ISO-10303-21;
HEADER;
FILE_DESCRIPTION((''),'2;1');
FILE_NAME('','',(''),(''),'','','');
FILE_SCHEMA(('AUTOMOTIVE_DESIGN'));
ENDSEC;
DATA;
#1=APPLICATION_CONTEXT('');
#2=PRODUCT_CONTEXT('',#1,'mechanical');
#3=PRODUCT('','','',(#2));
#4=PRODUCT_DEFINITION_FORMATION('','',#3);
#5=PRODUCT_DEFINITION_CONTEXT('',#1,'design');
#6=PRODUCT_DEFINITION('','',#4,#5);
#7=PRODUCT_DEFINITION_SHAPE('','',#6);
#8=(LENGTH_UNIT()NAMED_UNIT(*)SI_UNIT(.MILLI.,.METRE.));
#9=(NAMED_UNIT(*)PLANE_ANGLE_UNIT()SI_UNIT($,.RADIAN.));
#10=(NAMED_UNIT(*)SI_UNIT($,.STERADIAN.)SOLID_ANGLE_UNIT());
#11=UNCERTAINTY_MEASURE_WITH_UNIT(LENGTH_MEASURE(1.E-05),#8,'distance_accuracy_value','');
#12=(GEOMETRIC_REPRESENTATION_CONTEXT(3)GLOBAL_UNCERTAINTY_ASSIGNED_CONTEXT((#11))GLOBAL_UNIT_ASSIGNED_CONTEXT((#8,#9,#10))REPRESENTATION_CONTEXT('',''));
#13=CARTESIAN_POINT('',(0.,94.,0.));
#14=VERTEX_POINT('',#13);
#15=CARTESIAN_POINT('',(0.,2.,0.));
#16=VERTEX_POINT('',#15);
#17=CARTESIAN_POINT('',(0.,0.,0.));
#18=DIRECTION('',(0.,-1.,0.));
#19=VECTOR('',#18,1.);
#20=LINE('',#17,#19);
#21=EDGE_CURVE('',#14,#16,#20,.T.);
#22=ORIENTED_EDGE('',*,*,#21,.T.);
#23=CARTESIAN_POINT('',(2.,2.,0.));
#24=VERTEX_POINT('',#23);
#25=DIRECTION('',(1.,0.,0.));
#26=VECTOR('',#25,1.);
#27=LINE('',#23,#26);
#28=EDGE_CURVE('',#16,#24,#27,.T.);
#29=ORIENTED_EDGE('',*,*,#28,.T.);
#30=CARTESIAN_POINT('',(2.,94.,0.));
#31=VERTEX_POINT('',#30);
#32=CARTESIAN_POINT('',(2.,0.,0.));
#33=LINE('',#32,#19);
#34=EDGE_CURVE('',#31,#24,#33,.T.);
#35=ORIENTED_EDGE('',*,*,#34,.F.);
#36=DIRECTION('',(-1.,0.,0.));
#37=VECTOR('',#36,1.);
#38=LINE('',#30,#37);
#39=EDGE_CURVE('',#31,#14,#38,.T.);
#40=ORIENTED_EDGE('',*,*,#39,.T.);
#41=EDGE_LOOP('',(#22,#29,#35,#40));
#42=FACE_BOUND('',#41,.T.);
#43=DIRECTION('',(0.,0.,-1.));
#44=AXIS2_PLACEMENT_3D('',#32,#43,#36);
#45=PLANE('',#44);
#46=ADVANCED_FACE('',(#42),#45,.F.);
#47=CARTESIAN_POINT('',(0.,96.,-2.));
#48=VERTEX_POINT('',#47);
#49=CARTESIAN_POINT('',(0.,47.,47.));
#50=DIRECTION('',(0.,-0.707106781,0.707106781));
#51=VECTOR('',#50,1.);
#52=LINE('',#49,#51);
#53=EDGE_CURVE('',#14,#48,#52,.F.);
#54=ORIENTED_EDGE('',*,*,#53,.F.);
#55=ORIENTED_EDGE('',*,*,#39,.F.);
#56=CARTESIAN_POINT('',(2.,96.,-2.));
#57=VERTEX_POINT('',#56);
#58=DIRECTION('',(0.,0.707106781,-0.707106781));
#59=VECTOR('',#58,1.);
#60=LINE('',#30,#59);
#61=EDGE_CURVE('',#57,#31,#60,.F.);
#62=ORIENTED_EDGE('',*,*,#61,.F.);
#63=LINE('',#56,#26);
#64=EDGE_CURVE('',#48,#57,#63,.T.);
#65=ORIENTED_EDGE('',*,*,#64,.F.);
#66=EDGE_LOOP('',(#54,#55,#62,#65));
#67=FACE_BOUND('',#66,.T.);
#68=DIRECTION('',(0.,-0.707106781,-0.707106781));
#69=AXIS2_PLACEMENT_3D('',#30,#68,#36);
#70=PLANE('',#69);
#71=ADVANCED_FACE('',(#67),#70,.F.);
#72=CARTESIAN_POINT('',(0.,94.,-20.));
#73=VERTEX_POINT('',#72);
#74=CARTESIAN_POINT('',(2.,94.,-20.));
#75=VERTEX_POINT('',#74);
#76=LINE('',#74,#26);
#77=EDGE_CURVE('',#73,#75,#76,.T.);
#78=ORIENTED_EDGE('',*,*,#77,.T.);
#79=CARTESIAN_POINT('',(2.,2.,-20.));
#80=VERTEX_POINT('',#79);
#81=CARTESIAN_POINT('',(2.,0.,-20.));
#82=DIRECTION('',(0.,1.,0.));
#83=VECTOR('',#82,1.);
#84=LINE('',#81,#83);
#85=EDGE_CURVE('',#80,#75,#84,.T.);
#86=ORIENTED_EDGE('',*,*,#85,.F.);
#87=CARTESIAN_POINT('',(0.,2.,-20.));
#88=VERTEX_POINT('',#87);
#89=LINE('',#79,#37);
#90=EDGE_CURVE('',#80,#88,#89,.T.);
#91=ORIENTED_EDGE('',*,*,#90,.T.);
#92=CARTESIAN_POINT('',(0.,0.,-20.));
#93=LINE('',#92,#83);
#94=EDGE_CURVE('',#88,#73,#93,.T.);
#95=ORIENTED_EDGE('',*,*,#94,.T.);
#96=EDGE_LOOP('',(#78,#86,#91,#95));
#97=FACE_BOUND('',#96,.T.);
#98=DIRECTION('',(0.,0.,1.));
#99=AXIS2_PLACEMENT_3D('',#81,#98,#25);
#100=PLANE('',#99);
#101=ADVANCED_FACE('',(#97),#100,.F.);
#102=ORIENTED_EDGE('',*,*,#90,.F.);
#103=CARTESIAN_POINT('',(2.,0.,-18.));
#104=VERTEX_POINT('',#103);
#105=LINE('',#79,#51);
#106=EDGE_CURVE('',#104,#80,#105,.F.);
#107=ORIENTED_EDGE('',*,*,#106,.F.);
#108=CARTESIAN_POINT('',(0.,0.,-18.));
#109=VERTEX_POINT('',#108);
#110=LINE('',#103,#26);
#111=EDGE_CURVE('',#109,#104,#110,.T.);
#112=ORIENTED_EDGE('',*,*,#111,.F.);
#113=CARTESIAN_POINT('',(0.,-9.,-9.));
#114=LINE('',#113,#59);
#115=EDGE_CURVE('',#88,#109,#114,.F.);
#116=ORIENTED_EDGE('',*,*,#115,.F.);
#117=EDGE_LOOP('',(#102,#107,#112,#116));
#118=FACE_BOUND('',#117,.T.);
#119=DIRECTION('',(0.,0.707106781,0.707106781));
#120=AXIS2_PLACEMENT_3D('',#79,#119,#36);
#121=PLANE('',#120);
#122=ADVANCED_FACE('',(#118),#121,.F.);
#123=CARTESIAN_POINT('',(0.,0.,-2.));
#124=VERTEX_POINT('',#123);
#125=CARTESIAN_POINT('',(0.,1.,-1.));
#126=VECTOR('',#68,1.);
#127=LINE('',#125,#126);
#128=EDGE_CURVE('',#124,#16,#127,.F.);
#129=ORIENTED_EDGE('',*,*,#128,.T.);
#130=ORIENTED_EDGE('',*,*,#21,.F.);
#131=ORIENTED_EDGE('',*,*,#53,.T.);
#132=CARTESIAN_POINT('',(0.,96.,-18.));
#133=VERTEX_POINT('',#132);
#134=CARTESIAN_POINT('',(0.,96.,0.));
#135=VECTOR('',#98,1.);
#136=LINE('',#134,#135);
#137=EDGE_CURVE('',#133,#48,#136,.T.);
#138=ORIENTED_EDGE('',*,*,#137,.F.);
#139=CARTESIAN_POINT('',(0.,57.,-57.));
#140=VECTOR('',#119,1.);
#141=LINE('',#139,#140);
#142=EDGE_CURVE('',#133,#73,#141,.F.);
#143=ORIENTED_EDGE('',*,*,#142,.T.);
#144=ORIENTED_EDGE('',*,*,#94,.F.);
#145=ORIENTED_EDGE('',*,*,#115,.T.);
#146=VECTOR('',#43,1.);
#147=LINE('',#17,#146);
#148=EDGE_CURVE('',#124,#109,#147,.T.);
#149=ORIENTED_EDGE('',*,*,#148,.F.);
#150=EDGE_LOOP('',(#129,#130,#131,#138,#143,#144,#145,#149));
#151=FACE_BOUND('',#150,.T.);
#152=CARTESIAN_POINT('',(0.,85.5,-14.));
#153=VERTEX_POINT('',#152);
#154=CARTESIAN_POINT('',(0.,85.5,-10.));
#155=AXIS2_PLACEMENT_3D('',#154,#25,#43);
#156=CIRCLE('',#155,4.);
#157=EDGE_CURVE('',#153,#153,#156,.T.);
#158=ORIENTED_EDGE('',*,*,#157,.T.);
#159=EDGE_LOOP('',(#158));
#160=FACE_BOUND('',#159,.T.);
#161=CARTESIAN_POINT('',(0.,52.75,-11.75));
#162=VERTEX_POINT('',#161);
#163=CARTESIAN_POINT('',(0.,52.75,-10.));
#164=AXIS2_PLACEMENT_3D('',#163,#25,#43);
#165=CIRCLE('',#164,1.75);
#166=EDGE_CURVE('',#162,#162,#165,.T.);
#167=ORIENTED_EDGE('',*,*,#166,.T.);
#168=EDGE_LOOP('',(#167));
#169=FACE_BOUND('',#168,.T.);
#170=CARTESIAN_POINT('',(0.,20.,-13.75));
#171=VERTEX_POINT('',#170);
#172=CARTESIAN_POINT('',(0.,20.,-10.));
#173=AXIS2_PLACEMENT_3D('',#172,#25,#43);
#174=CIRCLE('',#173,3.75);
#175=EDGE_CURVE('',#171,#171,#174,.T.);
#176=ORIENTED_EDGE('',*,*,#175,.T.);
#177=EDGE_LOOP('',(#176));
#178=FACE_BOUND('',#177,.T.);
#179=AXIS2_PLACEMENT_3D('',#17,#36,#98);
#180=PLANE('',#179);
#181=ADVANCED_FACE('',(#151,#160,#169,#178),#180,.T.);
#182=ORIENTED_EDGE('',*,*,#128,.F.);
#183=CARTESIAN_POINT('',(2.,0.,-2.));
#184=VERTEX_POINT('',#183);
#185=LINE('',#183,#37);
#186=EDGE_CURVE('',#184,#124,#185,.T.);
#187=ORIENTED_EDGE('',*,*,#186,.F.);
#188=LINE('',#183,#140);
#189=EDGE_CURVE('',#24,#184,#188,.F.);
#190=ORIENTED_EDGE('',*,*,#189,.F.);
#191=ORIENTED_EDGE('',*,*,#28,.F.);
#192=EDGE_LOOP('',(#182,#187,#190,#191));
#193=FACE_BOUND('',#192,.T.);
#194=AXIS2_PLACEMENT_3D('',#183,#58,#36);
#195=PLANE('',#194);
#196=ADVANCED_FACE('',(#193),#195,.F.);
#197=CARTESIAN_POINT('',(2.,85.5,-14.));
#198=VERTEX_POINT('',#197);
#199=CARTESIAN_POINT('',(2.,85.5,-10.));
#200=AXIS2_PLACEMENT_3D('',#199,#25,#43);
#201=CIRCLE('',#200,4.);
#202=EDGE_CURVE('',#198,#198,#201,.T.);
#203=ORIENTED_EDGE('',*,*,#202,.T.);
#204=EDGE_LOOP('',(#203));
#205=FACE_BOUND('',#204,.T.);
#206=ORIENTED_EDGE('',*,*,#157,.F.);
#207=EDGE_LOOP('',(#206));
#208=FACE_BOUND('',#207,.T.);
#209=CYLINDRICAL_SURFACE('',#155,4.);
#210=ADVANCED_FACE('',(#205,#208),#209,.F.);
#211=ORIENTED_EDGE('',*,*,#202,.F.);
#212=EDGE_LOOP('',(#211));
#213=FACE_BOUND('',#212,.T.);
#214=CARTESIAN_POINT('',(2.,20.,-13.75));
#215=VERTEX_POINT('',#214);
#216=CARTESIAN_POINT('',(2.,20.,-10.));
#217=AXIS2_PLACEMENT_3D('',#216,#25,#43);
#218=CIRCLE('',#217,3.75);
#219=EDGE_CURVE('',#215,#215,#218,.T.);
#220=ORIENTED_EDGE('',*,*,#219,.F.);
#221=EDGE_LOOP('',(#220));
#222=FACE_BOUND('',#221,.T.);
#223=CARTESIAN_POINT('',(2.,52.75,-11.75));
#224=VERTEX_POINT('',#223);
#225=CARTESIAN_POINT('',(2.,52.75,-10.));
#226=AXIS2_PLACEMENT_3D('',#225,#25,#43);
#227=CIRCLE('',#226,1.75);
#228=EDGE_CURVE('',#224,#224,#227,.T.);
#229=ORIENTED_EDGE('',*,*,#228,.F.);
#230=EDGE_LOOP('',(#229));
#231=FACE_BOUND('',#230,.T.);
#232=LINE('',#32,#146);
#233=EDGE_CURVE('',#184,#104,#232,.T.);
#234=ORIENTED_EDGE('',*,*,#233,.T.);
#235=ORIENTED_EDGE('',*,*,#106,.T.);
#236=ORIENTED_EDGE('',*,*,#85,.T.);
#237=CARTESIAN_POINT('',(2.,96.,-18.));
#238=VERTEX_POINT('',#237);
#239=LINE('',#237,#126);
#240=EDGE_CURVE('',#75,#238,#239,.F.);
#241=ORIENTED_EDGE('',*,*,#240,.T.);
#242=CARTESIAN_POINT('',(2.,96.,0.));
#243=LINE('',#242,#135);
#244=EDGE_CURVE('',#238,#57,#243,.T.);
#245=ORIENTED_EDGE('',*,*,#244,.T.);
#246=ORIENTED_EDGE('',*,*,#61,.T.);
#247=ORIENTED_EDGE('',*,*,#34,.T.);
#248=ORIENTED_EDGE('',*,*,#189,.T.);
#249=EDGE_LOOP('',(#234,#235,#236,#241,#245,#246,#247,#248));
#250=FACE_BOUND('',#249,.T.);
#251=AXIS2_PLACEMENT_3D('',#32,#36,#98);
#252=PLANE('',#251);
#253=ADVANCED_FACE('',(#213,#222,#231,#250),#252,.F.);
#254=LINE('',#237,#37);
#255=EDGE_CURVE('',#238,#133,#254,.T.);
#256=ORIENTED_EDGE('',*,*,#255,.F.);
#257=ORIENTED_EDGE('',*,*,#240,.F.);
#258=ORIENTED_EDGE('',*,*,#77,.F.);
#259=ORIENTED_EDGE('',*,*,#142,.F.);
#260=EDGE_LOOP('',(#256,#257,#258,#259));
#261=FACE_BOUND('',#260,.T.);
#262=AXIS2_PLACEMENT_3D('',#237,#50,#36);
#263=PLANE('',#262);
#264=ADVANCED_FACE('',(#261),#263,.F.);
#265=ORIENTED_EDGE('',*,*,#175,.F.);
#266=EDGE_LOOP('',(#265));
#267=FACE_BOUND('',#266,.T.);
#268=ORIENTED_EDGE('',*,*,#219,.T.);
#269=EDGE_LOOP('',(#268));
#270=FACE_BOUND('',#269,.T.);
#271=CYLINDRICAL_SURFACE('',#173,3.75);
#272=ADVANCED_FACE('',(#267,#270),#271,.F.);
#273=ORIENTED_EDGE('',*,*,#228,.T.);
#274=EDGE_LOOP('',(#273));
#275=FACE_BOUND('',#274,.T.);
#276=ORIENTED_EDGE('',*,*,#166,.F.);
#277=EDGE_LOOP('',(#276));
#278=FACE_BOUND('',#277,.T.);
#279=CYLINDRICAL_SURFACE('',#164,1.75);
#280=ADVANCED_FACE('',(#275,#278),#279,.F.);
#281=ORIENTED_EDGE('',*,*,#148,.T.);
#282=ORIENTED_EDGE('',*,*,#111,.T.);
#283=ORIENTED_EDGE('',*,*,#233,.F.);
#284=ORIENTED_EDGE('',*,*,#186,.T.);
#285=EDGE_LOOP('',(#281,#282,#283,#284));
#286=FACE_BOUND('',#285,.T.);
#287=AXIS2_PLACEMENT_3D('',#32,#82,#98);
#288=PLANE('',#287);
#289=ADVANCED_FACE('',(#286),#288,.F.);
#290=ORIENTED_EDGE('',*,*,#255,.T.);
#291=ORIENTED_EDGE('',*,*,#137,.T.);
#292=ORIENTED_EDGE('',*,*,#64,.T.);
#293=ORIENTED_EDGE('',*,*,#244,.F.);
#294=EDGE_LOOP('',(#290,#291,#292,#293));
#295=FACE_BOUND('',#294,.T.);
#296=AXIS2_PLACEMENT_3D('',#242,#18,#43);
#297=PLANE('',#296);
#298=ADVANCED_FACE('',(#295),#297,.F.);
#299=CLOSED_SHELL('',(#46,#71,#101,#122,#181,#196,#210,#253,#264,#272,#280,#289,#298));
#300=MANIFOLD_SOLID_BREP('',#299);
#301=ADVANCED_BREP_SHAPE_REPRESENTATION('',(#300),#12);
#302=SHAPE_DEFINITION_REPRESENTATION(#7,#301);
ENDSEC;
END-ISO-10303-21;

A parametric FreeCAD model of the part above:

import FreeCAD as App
import Part
import Sketcher
from FreeCAD import Vector


def edges_at(feature, points):
    """Names of the edges that pass closest to the given points."""
    edges = feature.Shape.Edges
    near = lambda p: min(range(len(edges)), key=lambda i: edges[i].distToShape(Part.Vertex(*p))[0])
    return sorted({f"Edge{near(p) + 1}" for p in points})


def add_polygon(sketch, points):
    """Adds a closed chain of lines whose ends are joined by coincident constraints."""
    first, n = sketch.GeometryCount, len(points)
    for a, b in zip(points, points[1:] + points[:1]):
        sketch.addGeometry(Part.LineSegment(App.Vector(*a, 0), App.Vector(*b, 0)), False)
    for i in range(n):
        sketch.addConstraint(Sketcher.Constraint("Coincident", first + i, 2, first + (i + 1) % n, 1))

doc = App.newDocument("Part")
body = doc.addObject("PartDesign::Body", "Body")

# Sketch on YZ plane
sketch1 = body.newObject("Sketcher::SketchObject", "Sketch")
sketch1.AttachmentSupport = (doc.getObject("YZ_Plane"), [""])
sketch1.MapMode = "FlatFace"
add_polygon(sketch1, [(96, 0), (0, 0), (0, -20), (96, -20)])  # lines 0-3
sketch1.addConstraint([
    Sketcher.Constraint("Horizontal", 0),
    Sketcher.Constraint("Vertical", 1),
    Sketcher.Constraint("Horizontal", 2),
    Sketcher.Constraint("Vertical", 3),
    Sketcher.Constraint("Coincident", 0, 2, -1, 1),
    Sketcher.Constraint("DistanceX", 0, 2, 0, 1, 96.0),
    Sketcher.Constraint("DistanceY", 1, 2, 1, 1, 20.0),
])
pad1 = body.newObject("PartDesign::Pad", "Pad")
pad1.Profile = sketch1
pad1.Length = 2

# Sketch on YZ plane
sketch2 = body.newObject("Sketcher::SketchObject", "Sketch001")
sketch2.AttachmentSupport = (doc.getObject("YZ_Plane"), [""])
sketch2.MapMode = "FlatFace"
sketch2.AttachmentOffset = App.Placement(Vector(0, 0, 2), App.Rotation())
sketch2.addGeometry([
    Part.Circle(Vector(85.5, -10, 0), Vector(0, 0, 1), 4),
    Part.Circle(Vector(52.75, -10, 0), Vector(0, 0, 1), 1.75),
    Part.Circle(Vector(20, -10, 0), Vector(0, 0, 1), 3.75),
], False)
sketch2.addConstraint([
    Sketcher.Constraint("Horizontal", 0, 3, 1, 3),
    Sketcher.Constraint("Horizontal", 1, 3, 2, 3),
    Sketcher.Constraint("Diameter", 0, 8.0),
    Sketcher.Constraint("Diameter", 1, 3.5),
    Sketcher.Constraint("Diameter", 2, 7.5),
    Sketcher.Constraint("DistanceY", 0, 3, -1, 1, 10.0),
    Sketcher.Constraint("DistanceX", -1, 1, 2, 3, 20.0),
    Sketcher.Constraint("DistanceX", -1, 1, 0, 3, 85.5),
    Sketcher.Constraint("DistanceX", -1, 1, 1, 3, 52.75),
])
pocket1 = body.newObject("PartDesign::Pocket", "Pocket")
pocket1.Profile = sketch2
pocket1.Type = "ThroughAll"
doc.recompute()

chamfer = body.newObject("PartDesign::Chamfer", "Chamfer")
chamfer.Base = (pocket1, edges_at(pocket1, [
    (1, 96, 0),
    (1, 96, -20),
    (1, 0, -20),
    (1, 0, 0),
]))
chamfer.Size = 2

doc.recompute()
